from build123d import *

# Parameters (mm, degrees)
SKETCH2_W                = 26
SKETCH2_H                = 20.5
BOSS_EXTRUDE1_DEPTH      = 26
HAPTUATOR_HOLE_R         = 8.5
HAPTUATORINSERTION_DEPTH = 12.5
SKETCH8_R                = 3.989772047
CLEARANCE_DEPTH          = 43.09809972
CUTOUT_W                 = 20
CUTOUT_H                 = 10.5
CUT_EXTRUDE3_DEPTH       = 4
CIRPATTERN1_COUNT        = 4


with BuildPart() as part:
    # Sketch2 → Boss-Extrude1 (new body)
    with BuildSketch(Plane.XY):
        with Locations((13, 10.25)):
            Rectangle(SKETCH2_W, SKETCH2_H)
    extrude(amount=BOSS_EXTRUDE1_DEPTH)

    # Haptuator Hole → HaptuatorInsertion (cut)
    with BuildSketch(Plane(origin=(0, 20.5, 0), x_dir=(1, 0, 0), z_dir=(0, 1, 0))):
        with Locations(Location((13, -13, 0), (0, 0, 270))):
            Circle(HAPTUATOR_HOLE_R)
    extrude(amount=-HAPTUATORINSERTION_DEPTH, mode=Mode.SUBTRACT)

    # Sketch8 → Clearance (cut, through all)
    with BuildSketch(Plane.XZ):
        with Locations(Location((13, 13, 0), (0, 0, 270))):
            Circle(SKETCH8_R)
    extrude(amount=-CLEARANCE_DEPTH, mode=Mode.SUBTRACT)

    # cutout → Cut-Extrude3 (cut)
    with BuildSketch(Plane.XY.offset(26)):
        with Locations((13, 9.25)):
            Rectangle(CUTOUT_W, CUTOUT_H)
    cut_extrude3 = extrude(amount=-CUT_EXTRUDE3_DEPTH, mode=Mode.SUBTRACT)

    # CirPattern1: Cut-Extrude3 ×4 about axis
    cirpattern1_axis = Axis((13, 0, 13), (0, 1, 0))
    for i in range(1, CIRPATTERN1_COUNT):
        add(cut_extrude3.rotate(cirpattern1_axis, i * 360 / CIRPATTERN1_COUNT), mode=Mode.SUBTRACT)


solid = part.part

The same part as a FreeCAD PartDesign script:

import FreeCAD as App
import Part
import Sketcher
from FreeCAD import Vector

doc = App.newDocument("Part")
body = doc.addObject("PartDesign::Body", "Body")

# Sketch on XY plane
sketch1 = body.newObject("Sketcher::SketchObject", "Sketch")
sketch1.AttachmentSupport = (doc.getObject("XY_Plane"), [""])
sketch1.MapMode = "FlatFace"
sketch1.addGeometry([
    Part.LineSegment(Vector(0, 20, 0), Vector(0, 0, 0)),
    Part.LineSegment(Vector(0, 0, 0), Vector(26, 0, 0)),
    Part.LineSegment(Vector(26, 0, 0), Vector(26, 20, 0)),
    Part.LineSegment(Vector(26, 20, 0), Vector(0, 20, 0)),
], False)
sketch1.addConstraint([
    Sketcher.Constraint("Coincident", 0, 2, 1, 1),
    Sketcher.Constraint("Coincident", 1, 2, 2, 1),
    Sketcher.Constraint("Coincident", 2, 2, 3, 1),
    Sketcher.Constraint("Coincident", 3, 2, 0, 1),
    Sketcher.Constraint("Vertical", 0),
    Sketcher.Constraint("Horizontal", 1),
    Sketcher.Constraint("Vertical", 2),
    Sketcher.Constraint("Horizontal", 3),
    Sketcher.Constraint("Coincident", 0, 2, -1, 1),
    Sketcher.Constraint("DistanceX", 1, 1, 1, 2, 26.0),
    Sketcher.Constraint("DistanceY", 0, 2, 0, 1, 20.5),
])
pad1 = body.newObject("PartDesign::Pad", "Pad")
pad1.Profile = sketch1
pad1.Length = 26

# Sketch on XZ plane
sketch2 = body.newObject("Sketcher::SketchObject", "Sketch001")
sketch2.AttachmentSupport = (doc.getObject("XZ_Plane"), [""])
sketch2.MapMode = "FlatFace"
sketch2.AttachmentOffset = App.Placement(Vector(0, 0, -20.5), App.Rotation())
sketch2.addGeometry(Part.Circle(Vector(13, 13, 0), Vector(0, 0, 1), 8), False)
sketch2.addConstraint([
    Sketcher.Constraint("Diameter", 0, 17.0),
    Sketcher.Constraint("DistanceX", -1, 1, 0, 3, 13.0),
    Sketcher.Constraint("DistanceY", -1, 1, 0, 3, 13.0),
])
pocket1 = body.newObject("PartDesign::Pocket", "Pocket")
pocket1.Profile = sketch2
pocket1.Length = 12.5
pocket1.Reversed = True

# Sketch on XZ plane
sketch3 = body.newObject("Sketcher::SketchObject", "Sketch002")
sketch3.AttachmentSupport = (doc.getObject("XZ_Plane"), [""])
sketch3.MapMode = "FlatFace"
sketch3.addGeometry(Part.Circle(Vector(13, 13, 0), Vector(0, 0, 1), 4), False)
sketch3.addConstraint([
    Sketcher.Constraint("DistanceX", -1, 1, 0, 3, 13.0),
    Sketcher.Constraint("DistanceY", -1, 1, 0, 3, 13.0),
    Sketcher.Constraint("Diameter", 0, 7.979544),
])
pocket2 = body.newObject("PartDesign::Pocket", "Pocket001")
pocket2.Profile = sketch3
pocket2.Type = "ThroughAll"

# Sketch on XY plane
sketch4 = body.newObject("Sketcher::SketchObject", "Sketch003")
sketch4.AttachmentSupport = (doc.getObject("XY_Plane"), [""])
sketch4.MapMode = "FlatFace"
sketch4.AttachmentOffset = App.Placement(Vector(0, 0, 26), App.Rotation())
sketch4.addGeometry([
    Part.LineSegment(Vector(3, 14, 0), Vector(3, 4, 0)),
    Part.LineSegment(Vector(3, 4, 0), Vector(23, 4, 0)),
    Part.LineSegment(Vector(23, 4, 0), Vector(23, 14, 0)),
    Part.LineSegment(Vector(23, 14, 0), Vector(3, 14, 0)),
], False)
sketch4.addConstraint([
    Sketcher.Constraint("Coincident", 0, 2, 1, 1),
    Sketcher.Constraint("Coincident", 1, 2, 2, 1),
    Sketcher.Constraint("Coincident", 2, 2, 3, 1),
    Sketcher.Constraint("Coincident", 3, 2, 0, 1),
    Sketcher.Constraint("Vertical", 0),
    Sketcher.Constraint("Horizontal", 1),
    Sketcher.Constraint("Vertical", 2),
    Sketcher.Constraint("Horizontal", 3),
    Sketcher.Constraint("DistanceX", 1, 1, 1, 2, 20.0),
    Sketcher.Constraint("DistanceY", 0, 2, 0, 1, 10.5),
    Sketcher.Constraint("DistanceX", -1, 1, 0, 2, 3.0),
    Sketcher.Constraint("DistanceY", -1, 1, 0, 2, 4.0),
])
pocket3 = body.newObject("PartDesign::Pocket", "Pocket002")
pocket3.Profile = sketch4
pocket3.Length = 4
doc.recompute()

datumline = body.newObject("PartDesign::Line", "DatumLine")
datumline.Placement = App.Placement(Vector(13, 0, 13), App.Rotation(Vector(0, 0, 1), Vector(0, 1, 0)))
polarpattern = body.newObject("PartDesign::PolarPattern", "PolarPattern")
polarpattern.Originals = [pocket3]
polarpattern.Axis = (datumline, [""])
polarpattern.Angle = 360
polarpattern.Occurrences = 4
body.Tip = polarpattern

doc.recompute()
